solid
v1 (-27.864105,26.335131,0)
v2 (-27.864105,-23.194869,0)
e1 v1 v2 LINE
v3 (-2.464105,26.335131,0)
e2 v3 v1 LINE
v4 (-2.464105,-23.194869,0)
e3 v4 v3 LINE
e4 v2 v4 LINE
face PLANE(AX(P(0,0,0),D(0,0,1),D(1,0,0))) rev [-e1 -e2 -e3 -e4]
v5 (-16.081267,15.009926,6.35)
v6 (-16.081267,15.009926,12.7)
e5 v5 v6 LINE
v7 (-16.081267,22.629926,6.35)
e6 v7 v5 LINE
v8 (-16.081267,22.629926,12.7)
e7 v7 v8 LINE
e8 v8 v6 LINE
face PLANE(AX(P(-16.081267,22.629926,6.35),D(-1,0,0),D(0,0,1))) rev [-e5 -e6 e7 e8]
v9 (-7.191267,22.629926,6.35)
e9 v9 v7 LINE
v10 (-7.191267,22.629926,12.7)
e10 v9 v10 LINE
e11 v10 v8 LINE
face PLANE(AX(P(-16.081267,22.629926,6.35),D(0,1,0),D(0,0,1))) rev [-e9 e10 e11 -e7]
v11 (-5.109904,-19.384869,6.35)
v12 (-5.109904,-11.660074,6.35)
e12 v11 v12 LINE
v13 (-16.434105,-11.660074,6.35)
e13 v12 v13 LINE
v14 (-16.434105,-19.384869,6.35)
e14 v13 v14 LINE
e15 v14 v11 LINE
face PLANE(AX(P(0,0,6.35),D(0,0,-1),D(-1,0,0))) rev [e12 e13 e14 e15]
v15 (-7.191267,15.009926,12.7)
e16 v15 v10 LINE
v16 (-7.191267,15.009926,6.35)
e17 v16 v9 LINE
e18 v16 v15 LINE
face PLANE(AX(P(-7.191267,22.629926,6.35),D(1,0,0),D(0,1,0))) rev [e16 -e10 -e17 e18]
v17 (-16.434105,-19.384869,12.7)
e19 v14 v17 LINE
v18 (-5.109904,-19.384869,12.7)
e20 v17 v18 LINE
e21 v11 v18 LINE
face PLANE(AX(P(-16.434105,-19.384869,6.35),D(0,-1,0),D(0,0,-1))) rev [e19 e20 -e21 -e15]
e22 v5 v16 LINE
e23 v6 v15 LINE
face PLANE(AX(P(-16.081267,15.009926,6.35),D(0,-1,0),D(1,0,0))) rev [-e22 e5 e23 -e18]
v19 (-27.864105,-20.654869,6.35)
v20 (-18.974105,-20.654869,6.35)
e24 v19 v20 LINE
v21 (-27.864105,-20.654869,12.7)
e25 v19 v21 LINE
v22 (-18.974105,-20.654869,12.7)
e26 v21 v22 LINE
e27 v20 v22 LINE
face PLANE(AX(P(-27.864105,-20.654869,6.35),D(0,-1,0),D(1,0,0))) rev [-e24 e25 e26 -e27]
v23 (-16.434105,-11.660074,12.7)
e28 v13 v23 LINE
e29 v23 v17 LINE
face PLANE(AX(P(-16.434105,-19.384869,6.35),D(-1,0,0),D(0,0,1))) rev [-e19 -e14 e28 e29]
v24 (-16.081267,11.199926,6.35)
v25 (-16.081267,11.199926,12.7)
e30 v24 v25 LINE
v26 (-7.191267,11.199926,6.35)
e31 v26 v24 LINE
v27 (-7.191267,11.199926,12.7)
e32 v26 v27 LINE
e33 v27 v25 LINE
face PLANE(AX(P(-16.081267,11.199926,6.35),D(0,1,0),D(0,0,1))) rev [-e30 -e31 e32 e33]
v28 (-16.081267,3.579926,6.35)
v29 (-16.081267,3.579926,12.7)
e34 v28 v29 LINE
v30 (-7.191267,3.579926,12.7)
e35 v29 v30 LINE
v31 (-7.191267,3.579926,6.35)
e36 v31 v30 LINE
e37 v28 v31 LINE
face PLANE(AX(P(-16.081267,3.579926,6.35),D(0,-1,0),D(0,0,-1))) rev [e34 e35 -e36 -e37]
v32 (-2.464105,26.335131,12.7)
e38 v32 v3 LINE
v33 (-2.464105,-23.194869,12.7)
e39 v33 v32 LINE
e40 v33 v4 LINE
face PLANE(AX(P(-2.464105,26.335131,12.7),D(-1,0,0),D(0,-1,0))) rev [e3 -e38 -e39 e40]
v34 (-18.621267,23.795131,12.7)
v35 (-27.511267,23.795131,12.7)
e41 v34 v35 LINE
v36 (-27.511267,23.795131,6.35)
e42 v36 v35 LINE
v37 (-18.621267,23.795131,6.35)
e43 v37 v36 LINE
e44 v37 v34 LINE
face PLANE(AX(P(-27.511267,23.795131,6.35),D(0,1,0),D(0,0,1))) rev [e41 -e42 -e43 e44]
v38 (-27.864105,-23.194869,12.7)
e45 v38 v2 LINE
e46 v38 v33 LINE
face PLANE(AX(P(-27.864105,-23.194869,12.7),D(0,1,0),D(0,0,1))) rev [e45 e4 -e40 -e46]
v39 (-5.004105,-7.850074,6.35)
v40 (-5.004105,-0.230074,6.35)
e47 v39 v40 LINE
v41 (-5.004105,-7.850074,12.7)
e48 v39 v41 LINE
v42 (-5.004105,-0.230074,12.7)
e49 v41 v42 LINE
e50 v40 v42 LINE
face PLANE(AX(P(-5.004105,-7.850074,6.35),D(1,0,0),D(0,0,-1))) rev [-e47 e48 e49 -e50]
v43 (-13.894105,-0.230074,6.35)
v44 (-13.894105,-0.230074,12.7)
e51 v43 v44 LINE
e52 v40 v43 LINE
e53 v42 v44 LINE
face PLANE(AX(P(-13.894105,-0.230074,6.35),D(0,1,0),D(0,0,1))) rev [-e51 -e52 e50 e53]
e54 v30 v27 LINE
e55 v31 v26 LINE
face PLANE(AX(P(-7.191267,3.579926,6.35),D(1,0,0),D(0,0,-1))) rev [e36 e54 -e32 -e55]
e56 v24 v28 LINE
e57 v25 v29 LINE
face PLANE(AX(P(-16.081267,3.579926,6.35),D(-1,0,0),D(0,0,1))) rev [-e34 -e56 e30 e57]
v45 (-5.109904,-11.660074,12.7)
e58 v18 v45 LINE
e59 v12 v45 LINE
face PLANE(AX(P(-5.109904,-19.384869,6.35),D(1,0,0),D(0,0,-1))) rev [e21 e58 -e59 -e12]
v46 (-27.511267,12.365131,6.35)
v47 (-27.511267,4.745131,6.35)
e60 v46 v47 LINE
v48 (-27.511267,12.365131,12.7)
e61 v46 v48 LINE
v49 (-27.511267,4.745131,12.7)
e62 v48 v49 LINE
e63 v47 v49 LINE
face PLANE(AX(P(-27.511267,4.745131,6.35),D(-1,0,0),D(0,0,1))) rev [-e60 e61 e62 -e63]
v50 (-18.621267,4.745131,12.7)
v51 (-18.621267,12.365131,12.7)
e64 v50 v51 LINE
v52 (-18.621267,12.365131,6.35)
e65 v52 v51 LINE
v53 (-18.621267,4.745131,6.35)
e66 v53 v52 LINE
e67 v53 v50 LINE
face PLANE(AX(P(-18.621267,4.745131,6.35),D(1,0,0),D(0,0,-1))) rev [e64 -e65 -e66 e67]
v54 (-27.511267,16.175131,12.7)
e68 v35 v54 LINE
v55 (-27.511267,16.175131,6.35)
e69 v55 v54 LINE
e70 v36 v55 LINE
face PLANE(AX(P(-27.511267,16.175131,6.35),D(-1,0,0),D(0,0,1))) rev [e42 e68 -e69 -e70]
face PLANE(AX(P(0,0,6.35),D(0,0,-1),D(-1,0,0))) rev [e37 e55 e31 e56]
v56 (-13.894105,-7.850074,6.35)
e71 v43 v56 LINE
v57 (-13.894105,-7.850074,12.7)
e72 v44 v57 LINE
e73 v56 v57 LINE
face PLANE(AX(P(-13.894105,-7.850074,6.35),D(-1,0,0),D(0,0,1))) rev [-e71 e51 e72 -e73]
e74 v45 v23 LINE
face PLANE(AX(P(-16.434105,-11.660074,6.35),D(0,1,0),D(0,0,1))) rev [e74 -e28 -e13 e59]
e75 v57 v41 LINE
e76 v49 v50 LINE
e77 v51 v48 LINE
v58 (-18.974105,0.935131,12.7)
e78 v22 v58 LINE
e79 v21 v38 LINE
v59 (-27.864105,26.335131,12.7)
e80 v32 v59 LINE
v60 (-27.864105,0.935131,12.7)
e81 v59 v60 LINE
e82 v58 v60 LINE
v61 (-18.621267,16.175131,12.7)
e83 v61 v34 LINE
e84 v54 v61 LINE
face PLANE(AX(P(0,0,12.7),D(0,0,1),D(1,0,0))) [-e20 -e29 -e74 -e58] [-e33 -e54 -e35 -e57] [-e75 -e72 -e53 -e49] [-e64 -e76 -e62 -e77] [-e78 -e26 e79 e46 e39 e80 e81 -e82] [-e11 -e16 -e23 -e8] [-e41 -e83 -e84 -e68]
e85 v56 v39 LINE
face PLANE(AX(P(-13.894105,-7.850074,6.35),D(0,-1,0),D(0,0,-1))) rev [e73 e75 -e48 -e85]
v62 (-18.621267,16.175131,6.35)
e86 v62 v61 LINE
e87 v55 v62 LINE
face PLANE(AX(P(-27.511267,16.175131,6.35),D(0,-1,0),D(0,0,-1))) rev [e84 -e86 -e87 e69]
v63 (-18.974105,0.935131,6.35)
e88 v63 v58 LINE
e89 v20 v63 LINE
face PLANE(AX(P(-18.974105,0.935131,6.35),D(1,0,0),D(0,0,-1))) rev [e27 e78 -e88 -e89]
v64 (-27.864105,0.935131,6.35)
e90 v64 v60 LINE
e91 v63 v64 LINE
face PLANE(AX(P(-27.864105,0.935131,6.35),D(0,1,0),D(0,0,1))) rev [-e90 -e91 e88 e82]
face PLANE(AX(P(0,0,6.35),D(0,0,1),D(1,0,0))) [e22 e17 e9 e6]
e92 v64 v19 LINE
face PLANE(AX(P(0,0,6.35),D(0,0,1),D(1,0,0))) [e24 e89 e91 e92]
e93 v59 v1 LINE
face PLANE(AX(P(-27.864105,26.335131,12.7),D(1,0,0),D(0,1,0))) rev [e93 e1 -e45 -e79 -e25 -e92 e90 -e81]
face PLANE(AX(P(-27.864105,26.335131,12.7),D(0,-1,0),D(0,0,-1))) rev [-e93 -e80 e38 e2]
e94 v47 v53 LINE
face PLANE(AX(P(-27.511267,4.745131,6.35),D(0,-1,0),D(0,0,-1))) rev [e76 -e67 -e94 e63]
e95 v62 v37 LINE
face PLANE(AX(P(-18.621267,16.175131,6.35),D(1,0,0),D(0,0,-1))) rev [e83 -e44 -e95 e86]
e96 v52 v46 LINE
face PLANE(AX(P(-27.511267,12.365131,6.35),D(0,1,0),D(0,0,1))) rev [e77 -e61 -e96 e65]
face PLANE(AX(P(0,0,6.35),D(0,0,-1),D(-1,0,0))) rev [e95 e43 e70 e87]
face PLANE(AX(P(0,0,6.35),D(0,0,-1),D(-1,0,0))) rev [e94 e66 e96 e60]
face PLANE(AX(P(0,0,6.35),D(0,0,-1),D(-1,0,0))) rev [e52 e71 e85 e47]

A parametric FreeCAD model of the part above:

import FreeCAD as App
import Part
import Sketcher

V = App.Vector
Q = App.Units.Quantity


def add_polygon(sketch, points):
    """Adds a closed chain of lines whose ends are joined by coincident constraints."""
    first, n = sketch.GeometryCount, len(points)
    for a, b in zip(points, points[1:] + points[:1]):
        sketch.addGeometry(Part.LineSegment(App.Vector(*a, 0), App.Vector(*b, 0)), False)
    for i in range(n):
        sketch.addConstraint(Sketcher.Constraint("Coincident", first + i, 2, first + (i + 1) % n, 1))

doc = App.newDocument("Part")
body = doc.addObject("PartDesign::Body", "Body")

sketch1 = body.newObject("Sketcher::SketchObject", "Sketch")
sketch1.AttachmentSupport = (doc.getObject("XY_Plane"), [""])
sketch1.MapMode = "FlatFace"
add_polygon(sketch1, [(-27.864105, 26.335131), (-27.864105, -23.194869), (-2.464105, -23.194869), (-2.464105, 26.335131)])
sketch1.addConstraint(Sketcher.Constraint("Vertical", 0))
sketch1.addConstraint(Sketcher.Constraint("Horizontal", 1))
sketch1.addConstraint(Sketcher.Constraint("Vertical", 2))
sketch1.addConstraint(Sketcher.Constraint("Horizontal", 3))
sketch1.addConstraint(Sketcher.Constraint("DistanceX", 1, 1, 1, 2, Q("1 in")))
sketch1.addConstraint(Sketcher.Constraint("DistanceY", 0, 2, 0, 1, Q("1.95 in")))
sketch1.addConstraint(Sketcher.Constraint("DistanceY", 0, 2, -1, 1, Q("23.194869 mm")))
sketch1.addConstraint(Sketcher.Constraint("DistanceX", 0, 2, -1, 1, Q("27.864105 mm")))
pad1 = body.newObject("PartDesign::Pad", "Pad")
pad1.Profile = sketch1
pad1.Length = Q("0.5 in")

sketch2 = body.newObject("Sketcher::SketchObject", "Sketch001")
sketch2.AttachmentSupport = (doc.getObject("XY_Plane"), [""])
sketch2.MapMode = "FlatFace"
sketch2.AttachmentOffset = App.Placement(V(0, 0, 0.5 * 25.4), App.Rotation())
add_polygon(sketch2, [(-27.864105, 0.935131), (-27.864105, -20.654869), (-18.974105, -20.654869), (-18.974105, 0.935131)])
add_polygon(sketch2, [(-16.434105, -11.660074), (-16.434105, -19.384869), (-5.109904, -19.384869), (-5.109904, -11.660074)])
add_polygon(sketch2, [(-13.894105, -0.230074), (-13.894105, -7.850074), (-5.004105, -7.850074), (-5.004105, -0.230074)])
add_polygon(sketch2, [(-27.511267, 12.365131), (-27.511267, 4.745131), (-18.621267, 4.745131), (-18.621267, 12.365131)])
add_polygon(sketch2, [(-16.081267, 11.199926), (-16.081267, 3.579926), (-7.191267, 3.579926), (-7.191267, 11.199926)])
add_polygon(sketch2, [(-27.511267, 23.795131), (-27.511267, 16.175131), (-18.621267, 16.175131), (-18.621267, 23.795131)])
add_polygon(sketch2, [(-16.081267, 22.629926), (-16.081267, 15.009926), (-7.191267, 15.009926), (-7.191267, 22.629926)])
sketch2.addConstraint(Sketcher.Constraint("Vertical", 0))
sketch2.addConstraint(Sketcher.Constraint("Horizontal", 1))
sketch2.addConstraint(Sketcher.Constraint("Vertical", 2))
sketch2.addConstraint(Sketcher.Constraint("Horizontal", 3))
sketch2.addConstraint(Sketcher.Constraint("Vertical", 4))
sketch2.addConstraint(Sketcher.Constraint("Horizontal", 5))
sketch2.addConstraint(Sketcher.Constraint("Vertical", 6))
sketch2.addConstraint(Sketcher.Constraint("Horizontal", 7))
sketch2.addConstraint(Sketcher.Constraint("Vertical", 8))
sketch2.addConstraint(Sketcher.Constraint("Horizontal", 9))
sketch2.addConstraint(Sketcher.Constraint("Vertical", 10))
sketch2.addConstraint(Sketcher.Constraint("Horizontal", 11))
sketch2.addConstraint(Sketcher.Constraint("Vertical", 12))
sketch2.addConstraint(Sketcher.Constraint("Horizontal", 13))
sketch2.addConstraint(Sketcher.Constraint("Vertical", 14))
sketch2.addConstraint(Sketcher.Constraint("Horizontal", 15))
sketch2.addConstraint(Sketcher.Constraint("Vertical", 16))
sketch2.addConstraint(Sketcher.Constraint("Horizontal", 17))
sketch2.addConstraint(Sketcher.Constraint("Vertical", 18))
sketch2.addConstraint(Sketcher.Constraint("Horizontal", 19))
sketch2.addConstraint(Sketcher.Constraint("Vertical", 20))
sketch2.addConstraint(Sketcher.Constraint("Horizontal", 21))
sketch2.addConstraint(Sketcher.Constraint("Vertical", 22))
sketch2.addConstraint(Sketcher.Constraint("Horizontal", 23))
sketch2.addConstraint(Sketcher.Constraint("Vertical", 24))
sketch2.addConstraint(Sketcher.Constraint("Horizontal", 25))
sketch2.addConstraint(Sketcher.Constraint("Vertical", 26))
sketch2.addConstraint(Sketcher.Constraint("Horizontal", 27))
sketch2.addConstraint(Sketcher.Constraint("Vertical", 15, 2, 20, 2))
sketch2.addConstraint(Sketcher.Constraint("Vertical", 14, 2, 21, 2))
sketch2.addConstraint(Sketcher.Constraint("Vertical", 19, 2, 24, 2))
sketch2.addConstraint(Sketcher.Constraint("Vertical", 18, 2, 25, 2))
sketch2.addConstraint(Sketcher.Constraint("Equal", 3, 9))
sketch2.addConstraint(Sketcher.Constraint("Equal", 11, 13))
sketch2.addConstraint(Sketcher.Constraint("Equal", 15, 17))
sketch2.addConstraint(Sketcher.Constraint("Equal", 10, 12))
sketch2.addConstraint(Sketcher.Constraint("Equal", 14, 16))
sketch2.addConstraint(Sketcher.Constraint("Equal", 18, 20))
sketch2.addConstraint(Sketcher.Constraint("Equal", 22, 24))
sketch2.addConstraint(Sketcher.Constraint("DistanceY", 8, 2, 8, 1, Q("0.3 in")))
sketch2.addConstraint(Sketcher.Constraint("DistanceX", 1, 1, 1, 2, Q("0.35 in")))
sketch2.addConstraint(Sketcher.Constraint("DistanceY", 0, 2, 0, 1, Q("0.85 in")))
sketch2.addConstraint(Sketcher.Constraint("DistanceX", 1, 2, 4, 2, Q("0.1 in")))
sketch2.addConstraint(Sketcher.Constraint("DistanceY", 4, 2, 2, 2, Q("0.8 in")))
sketch2.addConstraint(Sketcher.Constraint("DistanceX", 7, 2, 8, 2, Q("0.1 in")))
sketch2.addConstraint(Sketcher.Constraint("DistanceX", 13, 2, 16, 2, Q("0.1 in")))
sketch2.addConstraint(Sketcher.Constraint("DistanceY", 7, 2, 8, 2, Q("0.15 in")))
sketch2.addConstraint(Sketcher.Constraint("DistanceY", 3, 2, 12, 2, Q("0.15 in")))
sketch2.addConstraint(Sketcher.Constraint("DistanceY", 11, 2, 16, 2, Q("0.15 in")))
sketch2.addConstraint(Sketcher.Constraint("DistanceY", 15, 2, 20, 2, Q("0.15 in")))
sketch2.addConstraint(Sketcher.Constraint("DistanceY", 19, 2, 24, 2, Q("0.15 in")))
sketch2.addConstraint(Sketcher.Constraint("DistanceX", 5, 1, 5, 2, Q("11.324201 mm")))
sketch2.addConstraint(Sketcher.Constraint("DistanceY", 4, 2, 4, 1, Q("7.724795 mm")))
sketch2.addConstraint(Sketcher.Constraint("DistanceY", 0, 2, -1, 1, Q("20.654869 mm")))
sketch2.addConstraint(Sketcher.Constraint("DistanceX", 0, 2, -1, 1, Q("27.864105 mm")))
sketch2.addConstraint(Sketcher.Constraint("DistanceX", 12, 2, -1, 1, Q("27.511267 mm")))
pocket1 = body.newObject("PartDesign::Pocket", "Pocket")
pocket1.Profile = sketch2
pocket1.Length = Q("0.25 in")

doc.recompute()
